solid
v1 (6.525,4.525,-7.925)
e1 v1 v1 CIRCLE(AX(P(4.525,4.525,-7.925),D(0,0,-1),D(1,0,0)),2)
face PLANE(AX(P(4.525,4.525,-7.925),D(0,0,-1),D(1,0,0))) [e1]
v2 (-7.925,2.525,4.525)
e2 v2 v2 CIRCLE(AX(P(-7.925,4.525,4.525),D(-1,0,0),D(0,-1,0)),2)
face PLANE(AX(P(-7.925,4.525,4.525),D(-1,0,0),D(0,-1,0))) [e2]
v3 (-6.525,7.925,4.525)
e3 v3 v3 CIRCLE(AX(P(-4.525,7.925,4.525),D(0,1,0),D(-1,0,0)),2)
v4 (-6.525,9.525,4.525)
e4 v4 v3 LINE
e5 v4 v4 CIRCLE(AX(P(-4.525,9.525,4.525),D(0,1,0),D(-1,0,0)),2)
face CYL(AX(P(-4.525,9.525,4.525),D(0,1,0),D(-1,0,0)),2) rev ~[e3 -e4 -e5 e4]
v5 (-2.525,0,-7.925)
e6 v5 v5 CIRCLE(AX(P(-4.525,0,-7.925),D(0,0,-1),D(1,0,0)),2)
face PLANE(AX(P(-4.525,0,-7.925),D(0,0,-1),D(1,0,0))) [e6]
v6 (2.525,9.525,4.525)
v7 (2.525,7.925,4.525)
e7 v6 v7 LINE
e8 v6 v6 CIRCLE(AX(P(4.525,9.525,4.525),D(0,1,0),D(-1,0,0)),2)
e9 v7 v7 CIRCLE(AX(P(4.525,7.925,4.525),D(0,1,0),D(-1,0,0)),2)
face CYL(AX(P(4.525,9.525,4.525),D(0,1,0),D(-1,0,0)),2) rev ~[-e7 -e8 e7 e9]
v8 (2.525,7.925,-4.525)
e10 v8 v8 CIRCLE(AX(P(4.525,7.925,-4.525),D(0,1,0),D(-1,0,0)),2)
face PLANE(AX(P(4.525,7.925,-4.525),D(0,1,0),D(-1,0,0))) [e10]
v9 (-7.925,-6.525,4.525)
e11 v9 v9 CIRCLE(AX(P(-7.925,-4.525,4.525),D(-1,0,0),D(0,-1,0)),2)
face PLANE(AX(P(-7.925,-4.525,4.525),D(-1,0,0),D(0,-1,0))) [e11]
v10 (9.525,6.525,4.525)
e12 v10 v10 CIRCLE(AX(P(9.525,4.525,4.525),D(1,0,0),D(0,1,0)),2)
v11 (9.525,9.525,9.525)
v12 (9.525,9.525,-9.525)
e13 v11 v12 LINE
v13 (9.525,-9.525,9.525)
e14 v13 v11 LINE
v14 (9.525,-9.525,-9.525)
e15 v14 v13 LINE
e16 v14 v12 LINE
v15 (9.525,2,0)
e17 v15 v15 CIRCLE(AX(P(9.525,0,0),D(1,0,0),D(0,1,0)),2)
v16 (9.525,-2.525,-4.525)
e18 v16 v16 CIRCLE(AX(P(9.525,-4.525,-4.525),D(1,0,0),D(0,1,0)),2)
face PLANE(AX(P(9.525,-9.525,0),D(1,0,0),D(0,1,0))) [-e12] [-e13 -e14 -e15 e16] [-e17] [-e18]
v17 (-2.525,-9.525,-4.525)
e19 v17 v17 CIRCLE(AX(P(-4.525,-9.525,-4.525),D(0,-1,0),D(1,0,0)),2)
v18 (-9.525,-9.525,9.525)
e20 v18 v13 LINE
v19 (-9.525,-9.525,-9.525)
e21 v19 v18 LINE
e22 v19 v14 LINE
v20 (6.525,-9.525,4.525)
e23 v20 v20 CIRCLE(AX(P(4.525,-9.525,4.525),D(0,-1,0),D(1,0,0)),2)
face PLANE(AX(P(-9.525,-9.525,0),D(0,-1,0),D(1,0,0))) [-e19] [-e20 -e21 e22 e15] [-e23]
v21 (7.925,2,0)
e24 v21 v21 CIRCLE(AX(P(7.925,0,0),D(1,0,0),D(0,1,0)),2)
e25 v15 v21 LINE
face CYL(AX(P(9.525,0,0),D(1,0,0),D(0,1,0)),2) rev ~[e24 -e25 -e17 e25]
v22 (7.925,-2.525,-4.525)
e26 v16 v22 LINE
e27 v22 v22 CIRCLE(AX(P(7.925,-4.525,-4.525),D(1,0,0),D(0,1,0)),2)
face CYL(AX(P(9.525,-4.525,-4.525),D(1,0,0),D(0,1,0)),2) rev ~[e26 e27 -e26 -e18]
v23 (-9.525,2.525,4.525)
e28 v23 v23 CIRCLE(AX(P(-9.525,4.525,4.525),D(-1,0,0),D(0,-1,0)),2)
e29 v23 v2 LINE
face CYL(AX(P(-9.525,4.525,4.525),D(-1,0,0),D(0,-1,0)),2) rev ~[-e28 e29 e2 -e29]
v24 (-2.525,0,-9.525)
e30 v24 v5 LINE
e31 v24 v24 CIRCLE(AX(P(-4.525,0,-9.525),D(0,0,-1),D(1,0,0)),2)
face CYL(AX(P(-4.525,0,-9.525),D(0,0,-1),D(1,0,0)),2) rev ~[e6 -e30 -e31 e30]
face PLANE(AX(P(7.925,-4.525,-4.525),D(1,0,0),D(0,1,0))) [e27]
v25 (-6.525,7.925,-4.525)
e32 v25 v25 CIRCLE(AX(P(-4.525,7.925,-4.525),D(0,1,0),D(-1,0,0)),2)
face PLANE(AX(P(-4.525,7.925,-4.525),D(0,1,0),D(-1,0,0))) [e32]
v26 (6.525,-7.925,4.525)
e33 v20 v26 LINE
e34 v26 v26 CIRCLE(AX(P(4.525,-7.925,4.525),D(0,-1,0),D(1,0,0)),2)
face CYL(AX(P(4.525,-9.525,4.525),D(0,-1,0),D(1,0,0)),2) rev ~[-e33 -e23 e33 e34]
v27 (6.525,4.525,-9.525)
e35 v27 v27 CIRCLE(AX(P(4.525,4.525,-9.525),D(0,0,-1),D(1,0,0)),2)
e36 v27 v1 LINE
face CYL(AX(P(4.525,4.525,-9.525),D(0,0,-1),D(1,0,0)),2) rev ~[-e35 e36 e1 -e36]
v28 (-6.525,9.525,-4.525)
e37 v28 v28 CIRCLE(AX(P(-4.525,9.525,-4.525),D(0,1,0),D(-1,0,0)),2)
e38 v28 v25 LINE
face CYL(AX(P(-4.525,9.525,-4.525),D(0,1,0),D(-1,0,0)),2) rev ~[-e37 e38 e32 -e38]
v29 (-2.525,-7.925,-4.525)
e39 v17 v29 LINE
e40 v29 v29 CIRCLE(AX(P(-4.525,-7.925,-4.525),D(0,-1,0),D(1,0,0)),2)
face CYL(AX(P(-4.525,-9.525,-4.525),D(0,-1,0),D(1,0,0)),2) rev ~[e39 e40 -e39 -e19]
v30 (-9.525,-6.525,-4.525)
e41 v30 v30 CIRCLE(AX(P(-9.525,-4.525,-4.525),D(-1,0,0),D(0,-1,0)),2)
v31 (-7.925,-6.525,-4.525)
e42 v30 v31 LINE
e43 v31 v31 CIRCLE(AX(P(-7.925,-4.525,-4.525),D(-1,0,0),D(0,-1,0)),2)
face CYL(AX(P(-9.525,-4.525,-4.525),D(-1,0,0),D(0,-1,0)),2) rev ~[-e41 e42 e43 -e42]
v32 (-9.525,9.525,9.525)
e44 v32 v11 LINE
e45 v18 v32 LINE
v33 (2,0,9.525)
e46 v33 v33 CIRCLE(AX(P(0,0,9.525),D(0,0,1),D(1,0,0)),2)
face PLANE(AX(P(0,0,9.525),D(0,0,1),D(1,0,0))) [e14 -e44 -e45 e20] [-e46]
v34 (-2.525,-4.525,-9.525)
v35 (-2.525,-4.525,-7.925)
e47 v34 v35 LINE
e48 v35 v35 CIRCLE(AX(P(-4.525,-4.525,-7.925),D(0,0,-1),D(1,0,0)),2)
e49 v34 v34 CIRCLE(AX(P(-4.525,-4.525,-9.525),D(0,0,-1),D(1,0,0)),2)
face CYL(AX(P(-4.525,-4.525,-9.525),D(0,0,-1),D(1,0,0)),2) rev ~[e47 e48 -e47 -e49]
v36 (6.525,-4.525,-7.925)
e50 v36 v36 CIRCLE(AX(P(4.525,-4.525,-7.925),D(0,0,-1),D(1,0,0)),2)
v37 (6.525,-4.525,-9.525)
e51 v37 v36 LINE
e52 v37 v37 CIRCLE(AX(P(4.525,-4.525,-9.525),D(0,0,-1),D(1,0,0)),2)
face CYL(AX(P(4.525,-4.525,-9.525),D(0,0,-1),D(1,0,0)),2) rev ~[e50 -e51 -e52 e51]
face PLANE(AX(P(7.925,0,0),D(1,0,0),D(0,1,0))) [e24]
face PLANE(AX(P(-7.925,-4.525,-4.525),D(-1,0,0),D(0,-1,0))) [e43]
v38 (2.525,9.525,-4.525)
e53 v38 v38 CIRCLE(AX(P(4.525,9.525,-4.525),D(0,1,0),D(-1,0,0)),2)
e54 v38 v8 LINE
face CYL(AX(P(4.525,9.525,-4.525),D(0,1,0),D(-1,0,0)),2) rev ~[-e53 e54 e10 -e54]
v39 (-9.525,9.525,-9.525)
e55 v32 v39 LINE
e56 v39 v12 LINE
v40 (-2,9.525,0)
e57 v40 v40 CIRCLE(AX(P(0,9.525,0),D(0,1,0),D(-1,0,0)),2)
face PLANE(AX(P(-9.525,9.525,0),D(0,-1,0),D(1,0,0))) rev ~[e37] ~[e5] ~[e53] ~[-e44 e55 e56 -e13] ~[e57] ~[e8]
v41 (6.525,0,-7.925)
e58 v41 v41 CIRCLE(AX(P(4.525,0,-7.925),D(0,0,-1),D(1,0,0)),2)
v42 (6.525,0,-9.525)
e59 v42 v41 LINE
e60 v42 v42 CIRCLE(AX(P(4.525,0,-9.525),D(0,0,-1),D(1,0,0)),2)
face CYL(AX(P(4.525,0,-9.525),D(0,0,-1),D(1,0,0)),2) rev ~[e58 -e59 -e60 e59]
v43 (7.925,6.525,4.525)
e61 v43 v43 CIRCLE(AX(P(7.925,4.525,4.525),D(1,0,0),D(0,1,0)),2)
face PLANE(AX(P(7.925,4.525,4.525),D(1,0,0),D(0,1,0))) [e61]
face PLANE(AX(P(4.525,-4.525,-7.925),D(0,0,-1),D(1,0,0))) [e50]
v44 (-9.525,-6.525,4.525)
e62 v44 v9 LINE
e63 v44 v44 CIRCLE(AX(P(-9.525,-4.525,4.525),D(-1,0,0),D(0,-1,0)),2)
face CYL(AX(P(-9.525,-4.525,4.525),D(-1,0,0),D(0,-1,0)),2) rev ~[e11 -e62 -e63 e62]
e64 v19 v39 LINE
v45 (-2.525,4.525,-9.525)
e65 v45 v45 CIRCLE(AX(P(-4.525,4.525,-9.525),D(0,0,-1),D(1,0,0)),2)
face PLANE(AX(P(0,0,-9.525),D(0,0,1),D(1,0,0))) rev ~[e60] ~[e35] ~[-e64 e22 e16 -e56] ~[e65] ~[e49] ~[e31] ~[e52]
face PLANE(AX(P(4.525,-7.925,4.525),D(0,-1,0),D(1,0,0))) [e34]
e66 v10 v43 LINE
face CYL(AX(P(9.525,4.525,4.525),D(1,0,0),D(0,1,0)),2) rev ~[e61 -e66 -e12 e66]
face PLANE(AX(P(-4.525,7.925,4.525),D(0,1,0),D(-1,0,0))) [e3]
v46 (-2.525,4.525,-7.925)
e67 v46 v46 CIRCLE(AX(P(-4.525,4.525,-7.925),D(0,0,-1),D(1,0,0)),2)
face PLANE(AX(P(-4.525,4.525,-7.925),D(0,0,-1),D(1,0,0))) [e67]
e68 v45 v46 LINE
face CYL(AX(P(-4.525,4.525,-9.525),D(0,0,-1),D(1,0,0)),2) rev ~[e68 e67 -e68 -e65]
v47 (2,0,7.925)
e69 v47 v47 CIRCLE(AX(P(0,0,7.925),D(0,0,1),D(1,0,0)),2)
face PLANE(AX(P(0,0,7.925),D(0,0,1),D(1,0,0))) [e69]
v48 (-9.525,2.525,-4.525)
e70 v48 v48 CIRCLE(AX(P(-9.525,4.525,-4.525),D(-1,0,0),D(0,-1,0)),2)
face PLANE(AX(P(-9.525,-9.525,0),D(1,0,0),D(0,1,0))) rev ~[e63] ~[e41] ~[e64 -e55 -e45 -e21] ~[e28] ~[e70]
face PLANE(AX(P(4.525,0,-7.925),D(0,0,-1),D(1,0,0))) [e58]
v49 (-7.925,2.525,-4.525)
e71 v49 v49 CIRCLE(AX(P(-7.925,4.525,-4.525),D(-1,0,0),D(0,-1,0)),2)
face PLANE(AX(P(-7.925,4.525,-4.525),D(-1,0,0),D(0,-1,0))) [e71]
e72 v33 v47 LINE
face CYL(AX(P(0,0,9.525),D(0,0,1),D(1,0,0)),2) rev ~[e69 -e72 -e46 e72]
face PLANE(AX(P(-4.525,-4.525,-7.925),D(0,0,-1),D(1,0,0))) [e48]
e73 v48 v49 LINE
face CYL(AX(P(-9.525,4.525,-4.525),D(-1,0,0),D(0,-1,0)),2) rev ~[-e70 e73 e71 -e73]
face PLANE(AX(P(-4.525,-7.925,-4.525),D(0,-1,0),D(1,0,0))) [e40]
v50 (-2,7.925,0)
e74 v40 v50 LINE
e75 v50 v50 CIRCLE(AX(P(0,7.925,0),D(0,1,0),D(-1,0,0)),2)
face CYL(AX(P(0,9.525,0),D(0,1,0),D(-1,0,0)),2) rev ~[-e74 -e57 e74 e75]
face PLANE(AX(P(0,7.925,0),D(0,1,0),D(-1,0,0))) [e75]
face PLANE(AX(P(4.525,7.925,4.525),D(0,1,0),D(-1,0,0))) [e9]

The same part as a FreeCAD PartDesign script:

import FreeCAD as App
import Part
import Sketcher
from FreeCAD import Vector


def add_polygon(sketch, points):
    """Adds a closed chain of lines whose ends are joined by coincident constraints."""
    first, n = sketch.GeometryCount, len(points)
    for a, b in zip(points, points[1:] + points[:1]):
        sketch.addGeometry(Part.LineSegment(App.Vector(*a, 0), App.Vector(*b, 0)), False)
    for i in range(n):
        sketch.addConstraint(Sketcher.Constraint("Coincident", first + i, 2, first + (i + 1) % n, 1))

doc = App.newDocument("Part")
body = doc.addObject("PartDesign::Body", "Body")

# Sketch on XY plane
sketch1 = doc.addObject("Sketcher::SketchObject", "Sketch")
body.addObject(sketch1)
sketch1.AttachmentSupport = (doc.XY_Plane, [""])
sketch1.MapMode = "FlatFace"
add_polygon(sketch1, [(-10, 10), (-10, -10), (10, -10), (10, 10)])  # lines 0-3
sketch1.addConstraint(Sketcher.Constraint("Vertical", 0))
sketch1.addConstraint(Sketcher.Constraint("Horizontal", 1))
sketch1.addConstraint(Sketcher.Constraint("Vertical", 2))
sketch1.addConstraint(Sketcher.Constraint("Horizontal", 3))
sketch1.addConstraint(Sketcher.Constraint("Symmetric", 0, 2, 2, 2, -1, 1))
sketch1.addConstraint(Sketcher.Constraint("Equal", 3, 0))
sketch1.addConstraint(Sketcher.Constraint("DistanceX", 1, 1, 1, 2, 19.05))
pad1 = doc.addObject("PartDesign::Pad", "Pad")
body.addObject(pad1)
pad1.Profile = sketch1
pad1.Length = 19.05
pad1.Midplane = True

# Sketch on XY plane
sketch2 = doc.addObject("Sketcher::SketchObject", "Sketch001")
body.addObject(sketch2)
sketch2.AttachmentSupport = (doc.XY_Plane, [""])
sketch2.MapMode = "FlatFace"
sketch2.AttachmentOffset = App.Placement(Vector(0, 0, 9.525), App.Rotation())
sketch2.addGeometry(Part.Circle(Vector(0, 0, 0), Vector(0, 0, 1), 2), False)
sketch2.addConstraint(Sketcher.Constraint("Coincident", 0, 3, -1, 1))
sketch2.addConstraint(Sketcher.Constraint("Diameter", 0, 4.0))
pocket1 = doc.addObject("PartDesign::Pocket", "Pocket")
body.addObject(pocket1)
pocket1.Profile = sketch2
pocket1.Length = 1.6

# Sketch on XZ plane
sketch3 = doc.addObject("Sketcher::SketchObject", "Sketch002")
body.addObject(sketch3)
sketch3.AttachmentSupport = (doc.XZ_Plane, [""])
sketch3.MapMode = "FlatFace"
sketch3.AttachmentOffset = App.Placement(Vector(0, 0, 9.525), App.Rotation())
sketch3.addGeometry(Part.Circle(Vector(4.5, 4.5, 0), Vector(0, 0, 1), 2), False)
sketch3.addGeometry(Part.Circle(Vector(-4.5, -4.5, 0), Vector(0, 0, 1), 2), False)
sketch3.addConstraint(Sketcher.Constraint("Equal", 0, 1))
sketch3.addConstraint(Sketcher.Constraint("Symmetric", 0, 3, 1, 3, -1, 1))
sketch3.addConstraint(Sketcher.Constraint("Diameter", 0, 4.0))
sketch3.addConstraint(Sketcher.Constraint("DistanceX", 1, 3, 0, 3, 9.05))
sketch3.addConstraint(Sketcher.Constraint("DistanceY", 1, 3, 0, 3, 9.05))
pocket2 = doc.addObject("PartDesign::Pocket", "Pocket001")
body.addObject(pocket2)
pocket2.Profile = sketch3
pocket2.Length = 1.6

# Sketch on XY plane
sketch4 = doc.addObject("Sketcher::SketchObject", "Sketch003")
body.addObject(sketch4)
sketch4.AttachmentSupport = (doc.XY_Plane, [""])
sketch4.MapMode = "FlatFace"
sketch4.AttachmentOffset = App.Placement(Vector(0, 0, -9.525), App.Rotation())
sketch4.addGeometry(Part.Circle(Vector(-4.5, 4.5, 0), Vector(0, 0, 1), 2), False)
sketch4.addGeometry(Part.Circle(Vector(-4.5, -4.5, 0), Vector(0, 0, 1), 2), False)
sketch4.addGeometry(Part.Circle(Vector(4.5, 4.5, 0), Vector(0, 0, 1), 2), False)
sketch4.addGeometry(Part.Circle(Vector(4.5, -4.5, 0), Vector(0, 0, 1), 2), False)
sketch4.addGeometry(Part.Circle(Vector(-4.5, 0, 0), Vector(0, 0, 1), 2), False)
sketch4.addGeometry(Part.Circle(Vector(4.5, 0, 0), Vector(0, 0, 1), 2), False)
sketch4.addConstraint(Sketcher.Constraint("Equal", 0, 1))
sketch4.addConstraint(Sketcher.Constraint("Equal", 1, 2))
sketch4.addConstraint(Sketcher.Constraint("Equal", 2, 3))
sketch4.addConstraint(Sketcher.Constraint("Equal", 3, 4))
sketch4.addConstraint(Sketcher.Constraint("Equal", 4, 5))
sketch4.addConstraint(Sketcher.Constraint("Symmetric", 1, 3, 2, 3, -1, 1))
sketch4.addConstraint(Sketcher.Constraint("Symmetric", 0, 3, 3, 3, -1, 1))
sketch4.addConstraint(Sketcher.Constraint("Symmetric", 4, 3, 5, 3, -1, 1))
sketch4.addConstraint(Sketcher.Constraint("Symmetric", 0, 3, 2, 3, -2))
sketch4.addConstraint(Sketcher.Constraint("PointOnObject", 4, 3, -1))
sketch4.addConstraint(Sketcher.Constraint("Vertical", 1, 3, 4, 3))
sketch4.addConstraint(Sketcher.Constraint("Diameter", 0, 4.0))
sketch4.addConstraint(Sketcher.Constraint("DistanceY", 1, 3, 0, 3, 9.05))
sketch4.addConstraint(Sketcher.Constraint("DistanceX", 0, 3, 2, 3, 9.05))
pocket3 = doc.addObject("PartDesign::Pocket", "Pocket002")
body.addObject(pocket3)
pocket3.Profile = sketch4
pocket3.Length = 1.6
pocket3.Reversed = True

# Sketch on XZ plane
sketch5 = doc.addObject("Sketcher::SketchObject", "Sketch004")
body.addObject(sketch5)
sketch5.AttachmentSupport = (doc.XZ_Plane, [""])
sketch5.MapMode = "FlatFace"
sketch5.AttachmentOffset = App.Placement(Vector(0, 0, -9.525), App.Rotation())
sketch5.addGeometry(Part.Circle(Vector(4.5, -4.5, 0), Vector(0, 0, 1), 2), False)
sketch5.addGeometry(Part.Circle(Vector(4.5, 4.5, 0), Vector(0, 0, 1), 2), False)
sketch5.addGeometry(Part.Circle(Vector(-4.5, -4.5, 0), Vector(0, 0, 1), 2), False)
sketch5.addGeometry(Part.Circle(Vector(-4.5, 4.5, 0), Vector(0, 0, 1), 2), False)
sketch5.addGeometry(Part.Circle(Vector(0, 0, 0), Vector(0, 0, 1), 2), False)
sketch5.addConstraint(Sketcher.Constraint("Coincident", 4, 3, -1, 1))
sketch5.addConstraint(Sketcher.Constraint("Equal", 0, 1))
sketch5.addConstraint(Sketcher.Constraint("Equal", 1, 2))
sketch5.addConstraint(Sketcher.Constraint("Equal", 2, 3))
sketch5.addConstraint(Sketcher.Constraint("Equal", 3, 4))
sketch5.addConstraint(Sketcher.Constraint("Symmetric", 1, 3, 2, 3, -1, 1))
sketch5.addConstraint(Sketcher.Constraint("Symmetric", 0, 3, 3, 3, -1, 1))
sketch5.addConstraint(Sketcher.Constraint("Symmetric", 0, 3, 2, 3, -2))
sketch5.addConstraint(Sketcher.Constraint("Diameter", 0, 4.0))
sketch5.addConstraint(Sketcher.Constraint("DistanceY", 0, 3, 1, 3, 9.05))
sketch5.addConstraint(Sketcher.Constraint("DistanceX", 2, 3, 0, 3, 9.05))
pocket4 = doc.addObject("PartDesign::Pocket", "Pocket003")
body.addObject(pocket4)
pocket4.Profile = sketch5
pocket4.Length = 1.6
pocket4.Reversed = True

# Sketch on YZ plane
sketch6 = doc.addObject("Sketcher::SketchObject", "Sketch005")
body.addObject(sketch6)
sketch6.AttachmentSupport = (doc.YZ_Plane, [""])
sketch6.MapMode = "FlatFace"
sketch6.AttachmentOffset = App.Placement(Vector(0, 0, 9.525), App.Rotation())
sketch6.addGeometry(Part.Circle(Vector(0, 0, 0), Vector(0, 0, 1), 2), False)
sketch6.addGeometry(Part.Circle(Vector(4.5, 4.5, 0), Vector(0, 0, 1), 2), False)
sketch6.addGeometry(Part.Circle(Vector(-4.5, -4.5, 0), Vector(0, 0, 1), 2), False)
sketch6.addConstraint(Sketcher.Constraint("Coincident", 0, 3, -1, 1))
sketch6.addConstraint(Sketcher.Constraint("Equal", 0, 1))
sketch6.addConstraint(Sketcher.Constraint("Equal", 1, 2))
sketch6.addConstraint(Sketcher.Constraint("Symmetric", 1, 3, 2, 3, -1, 1))
sketch6.addConstraint(Sketcher.Constraint("Diameter", 0, 4.0))
sketch6.addConstraint(Sketcher.Constraint("DistanceX", 2, 3, 1, 3, 9.05))
sketch6.addConstraint(Sketcher.Constraint("DistanceY", 2, 3, 1, 3, 9.05))
pocket5 = doc.addObject("PartDesign::Pocket", "Pocket004")
body.addObject(pocket5)
pocket5.Profile = sketch6
pocket5.Length = 1.6

# Sketch on YZ plane
sketch7 = doc.addObject("Sketcher::SketchObject", "Sketch006")
body.addObject(sketch7)
sketch7.AttachmentSupport = (doc.YZ_Plane, [""])
sketch7.MapMode = "FlatFace"
sketch7.AttachmentOffset = App.Placement(Vector(0, 0, -9.525), App.Rotation())
sketch7.addGeometry(Part.Circle(Vector(4.5, -4.5, 0), Vector(0, 0, 1), 2), False)
sketch7.addGeometry(Part.Circle(Vector(4.5, 4.5, 0), Vector(0, 0, 1), 2), False)
sketch7.addGeometry(Part.Circle(Vector(-4.5, -4.5, 0), Vector(0, 0, 1), 2), False)
sketch7.addGeometry(Part.Circle(Vector(-4.5, 4.5, 0), Vector(0, 0, 1), 2), False)
sketch7.addConstraint(Sketcher.Constraint("Equal", 0, 1))
sketch7.addConstraint(Sketcher.Constraint("Equal", 1, 2))
sketch7.addConstraint(Sketcher.Constraint("Equal", 2, 3))
sketch7.addConstraint(Sketcher.Constraint("Symmetric", 1, 3, 2, 3, -1, 1))
sketch7.addConstraint(Sketcher.Constraint("Symmetric", 0, 3, 3, 3, -1, 1))
sketch7.addConstraint(Sketcher.Constraint("Symmetric", 0, 3, 2, 3, -2))
sketch7.addConstraint(Sketcher.Constraint("Diameter", 0, 4.0))
sketch7.addConstraint(Sketcher.Constraint("DistanceY", 0, 3, 1, 3, 9.05))
sketch7.addConstraint(Sketcher.Constraint("DistanceX", 2, 3, 0, 3, 9.05))
pocket6 = doc.addObject("PartDesign::Pocket", "Pocket005")
body.addObject(pocket6)
pocket6.Profile = sketch7
pocket6.Length = 1.6
pocket6.Reversed = True

doc.recompute()
